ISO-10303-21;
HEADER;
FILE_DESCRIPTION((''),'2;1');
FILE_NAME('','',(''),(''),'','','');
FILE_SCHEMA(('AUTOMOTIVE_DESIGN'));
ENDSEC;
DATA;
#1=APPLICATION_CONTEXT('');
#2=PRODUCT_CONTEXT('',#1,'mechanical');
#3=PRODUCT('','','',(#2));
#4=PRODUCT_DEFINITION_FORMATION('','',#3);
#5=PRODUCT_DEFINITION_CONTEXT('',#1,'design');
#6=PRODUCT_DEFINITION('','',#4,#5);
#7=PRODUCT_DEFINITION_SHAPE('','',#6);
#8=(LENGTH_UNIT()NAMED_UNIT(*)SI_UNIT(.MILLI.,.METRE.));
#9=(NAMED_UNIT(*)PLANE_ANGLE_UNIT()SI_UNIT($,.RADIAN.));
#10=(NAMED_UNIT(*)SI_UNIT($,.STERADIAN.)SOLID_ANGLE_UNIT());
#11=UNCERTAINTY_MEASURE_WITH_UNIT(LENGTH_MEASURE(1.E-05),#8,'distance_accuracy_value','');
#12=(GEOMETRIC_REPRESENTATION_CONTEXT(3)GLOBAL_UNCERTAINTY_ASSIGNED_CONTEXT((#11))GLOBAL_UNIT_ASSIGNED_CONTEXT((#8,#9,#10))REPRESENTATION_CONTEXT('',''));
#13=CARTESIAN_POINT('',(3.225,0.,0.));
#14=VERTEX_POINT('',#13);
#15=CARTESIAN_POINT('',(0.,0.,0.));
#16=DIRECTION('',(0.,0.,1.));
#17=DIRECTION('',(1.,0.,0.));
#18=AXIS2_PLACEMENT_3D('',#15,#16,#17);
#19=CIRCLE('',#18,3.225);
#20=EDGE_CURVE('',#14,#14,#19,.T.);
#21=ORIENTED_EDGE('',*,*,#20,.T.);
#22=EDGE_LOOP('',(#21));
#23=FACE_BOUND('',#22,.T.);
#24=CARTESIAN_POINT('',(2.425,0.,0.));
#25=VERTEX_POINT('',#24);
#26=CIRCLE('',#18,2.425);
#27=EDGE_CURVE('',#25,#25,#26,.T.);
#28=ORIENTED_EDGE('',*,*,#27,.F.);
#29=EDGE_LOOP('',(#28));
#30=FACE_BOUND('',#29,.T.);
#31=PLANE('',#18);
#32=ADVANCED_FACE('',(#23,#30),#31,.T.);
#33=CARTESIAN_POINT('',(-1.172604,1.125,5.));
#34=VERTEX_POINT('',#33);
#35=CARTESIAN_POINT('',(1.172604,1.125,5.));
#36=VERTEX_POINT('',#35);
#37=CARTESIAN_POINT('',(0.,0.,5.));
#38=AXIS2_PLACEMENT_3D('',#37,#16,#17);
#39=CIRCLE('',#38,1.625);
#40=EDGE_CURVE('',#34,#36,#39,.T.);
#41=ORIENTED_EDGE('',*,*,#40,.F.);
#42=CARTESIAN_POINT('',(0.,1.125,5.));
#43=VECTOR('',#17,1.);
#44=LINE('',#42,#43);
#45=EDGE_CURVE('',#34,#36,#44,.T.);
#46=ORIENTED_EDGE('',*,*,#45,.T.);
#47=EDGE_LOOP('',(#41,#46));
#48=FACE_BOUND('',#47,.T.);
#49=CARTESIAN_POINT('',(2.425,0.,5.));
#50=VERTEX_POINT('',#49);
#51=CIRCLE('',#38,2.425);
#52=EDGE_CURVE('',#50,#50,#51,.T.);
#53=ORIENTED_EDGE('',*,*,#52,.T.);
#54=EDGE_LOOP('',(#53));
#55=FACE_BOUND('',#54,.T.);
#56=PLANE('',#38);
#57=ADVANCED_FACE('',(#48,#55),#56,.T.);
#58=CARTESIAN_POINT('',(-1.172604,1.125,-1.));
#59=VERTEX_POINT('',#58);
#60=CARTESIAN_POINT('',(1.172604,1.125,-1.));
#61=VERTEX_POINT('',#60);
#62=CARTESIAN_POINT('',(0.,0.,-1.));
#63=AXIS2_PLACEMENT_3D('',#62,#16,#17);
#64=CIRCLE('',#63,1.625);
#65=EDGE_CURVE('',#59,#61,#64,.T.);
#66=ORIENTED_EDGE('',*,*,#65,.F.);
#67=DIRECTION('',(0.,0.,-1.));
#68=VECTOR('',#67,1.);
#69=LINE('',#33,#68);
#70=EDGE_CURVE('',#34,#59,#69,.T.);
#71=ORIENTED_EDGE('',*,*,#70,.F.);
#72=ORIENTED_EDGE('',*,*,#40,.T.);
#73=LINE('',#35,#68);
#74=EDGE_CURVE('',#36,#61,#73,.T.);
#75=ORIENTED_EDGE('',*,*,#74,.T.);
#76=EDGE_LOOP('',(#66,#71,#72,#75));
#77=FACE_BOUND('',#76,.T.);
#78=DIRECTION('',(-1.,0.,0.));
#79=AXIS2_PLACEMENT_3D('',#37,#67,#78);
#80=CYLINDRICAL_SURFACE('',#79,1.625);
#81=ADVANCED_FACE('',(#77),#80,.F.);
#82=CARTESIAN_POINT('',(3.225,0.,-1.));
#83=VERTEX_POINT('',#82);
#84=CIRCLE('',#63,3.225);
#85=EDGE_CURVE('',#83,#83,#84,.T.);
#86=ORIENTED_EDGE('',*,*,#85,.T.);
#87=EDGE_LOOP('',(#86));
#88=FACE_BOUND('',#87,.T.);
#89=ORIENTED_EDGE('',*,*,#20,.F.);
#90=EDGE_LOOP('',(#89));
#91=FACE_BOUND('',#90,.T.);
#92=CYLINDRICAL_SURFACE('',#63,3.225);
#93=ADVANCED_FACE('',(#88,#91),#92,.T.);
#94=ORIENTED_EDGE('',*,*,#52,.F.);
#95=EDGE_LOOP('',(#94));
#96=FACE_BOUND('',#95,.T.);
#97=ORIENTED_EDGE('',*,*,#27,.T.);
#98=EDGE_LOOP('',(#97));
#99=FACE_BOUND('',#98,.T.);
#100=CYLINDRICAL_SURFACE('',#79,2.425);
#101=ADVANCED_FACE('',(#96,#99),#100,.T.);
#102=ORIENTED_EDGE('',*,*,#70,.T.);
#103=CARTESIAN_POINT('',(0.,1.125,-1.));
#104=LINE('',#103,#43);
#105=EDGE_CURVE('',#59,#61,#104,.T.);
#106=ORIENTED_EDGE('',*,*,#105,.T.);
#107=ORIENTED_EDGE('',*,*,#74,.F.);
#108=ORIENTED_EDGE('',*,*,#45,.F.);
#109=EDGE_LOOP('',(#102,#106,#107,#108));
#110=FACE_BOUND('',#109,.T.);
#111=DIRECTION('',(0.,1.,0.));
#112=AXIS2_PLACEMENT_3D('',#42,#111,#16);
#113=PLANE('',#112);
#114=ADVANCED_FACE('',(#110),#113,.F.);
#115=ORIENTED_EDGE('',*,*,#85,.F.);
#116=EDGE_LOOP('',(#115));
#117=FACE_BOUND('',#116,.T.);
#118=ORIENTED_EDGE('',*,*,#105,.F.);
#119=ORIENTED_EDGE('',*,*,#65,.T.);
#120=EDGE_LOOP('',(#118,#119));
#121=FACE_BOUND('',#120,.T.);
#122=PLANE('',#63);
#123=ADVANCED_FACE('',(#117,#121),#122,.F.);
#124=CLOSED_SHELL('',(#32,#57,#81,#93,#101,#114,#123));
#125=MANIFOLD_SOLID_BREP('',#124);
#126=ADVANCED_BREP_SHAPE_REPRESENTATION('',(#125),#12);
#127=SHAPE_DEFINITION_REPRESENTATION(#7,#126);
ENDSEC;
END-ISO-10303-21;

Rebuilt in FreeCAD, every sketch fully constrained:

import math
import FreeCAD as App
import Part
import Sketcher
from FreeCAD import Vector
Q = App.Units.Quantity

doc = App.newDocument("Part")
params = doc.addObject("Spreadsheet::Sheet", "Params")
for row, (alias, value) in enumerate([
    ("sketch1_diameter", "4.85 mm"),
    ("pad1_length", "5 mm"),
    ("sketch2_diameter", "6.45 mm"),
    ("pad2_length", "1 mm"),
], start=1):
    params.set(f"A{row}", alias)
    params.set(f"B{row}", "=" + value)
    params.setAlias(f"B{row}", alias)

body = doc.addObject("PartDesign::Body", "Body")

sketch1 = body.newObject("Sketcher::SketchObject", "Sketch")
sketch1.AttachmentSupport = (doc.getObject("XY_Plane"), [""])
sketch1.MapMode = "FlatFace"
sketch1.addGeometry(Part.Circle(Vector(0, 0, 0), Vector(0, 0, 1), 2.4), False)
sketch1.addGeometry(Part.ArcOfCircle(Part.Circle(Vector(0, 0, 0), Vector(0, 0, 1), 1.6), math.radians(136), math.radians(404)), False)
sketch1.addGeometry(Part.LineSegment(Vector(-1.2, 1.1, 0), Vector(1.2, 1.1, 0)), False)
sketch1.addConstraint(Sketcher.Constraint("Coincident", 1, 1, 2, 1))
sketch1.addConstraint(Sketcher.Constraint("Coincident", 2, 2, 1, 2))
sketch1.addConstraint(Sketcher.Constraint("Horizontal", 2))
sketch1.addConstraint(Sketcher.Constraint("Coincident", 0, 3, -1, 1))
sketch1.addConstraint(Sketcher.Constraint("Coincident", 1, 3, -1, 1))
sketch1.addConstraint(Sketcher.Constraint("Diameter", 0, Q("4.85 mm")))
sketch1.addConstraint(Sketcher.Constraint("Radius", 1, Q("1.625 mm")))
sketch1.addConstraint(Sketcher.Constraint("DistanceY", -1, 1, 1, 1, Q("1.125 mm")))
sketch1.setExpression("Constraints[5]", "Params.sketch1_diameter")
pad1 = body.newObject("PartDesign::Pad", "Pad")
pad1.Profile = sketch1
pad1.setExpression("Length", "Params.pad1_length")

sketch2 = body.newObject("Sketcher::SketchObject", "Sketch001")
sketch2.AttachmentSupport = (doc.getObject("XY_Plane"), [""])
sketch2.MapMode = "FlatFace"
sketch2.AttachmentOffset = App.Placement(Vector(0, 0, -1), App.Rotation())
sketch2.addGeometry(Part.Circle(Vector(0, 0, 0), Vector(0, 0, 1), 3.2), False)
sketch2.addGeometry(Part.LineSegment(Vector(-1.2, 1.1, 0), Vector(1.2, 1.1, 0)), False)
sketch2.addGeometry(Part.ArcOfCircle(Part.Circle(Vector(0, 0, 0), Vector(0, 0, 1), 1.6), math.radians(136), math.radians(404)), False)
sketch2.addConstraint(Sketcher.Constraint("Coincident", 1, 1, 2, 1))
sketch2.addConstraint(Sketcher.Constraint("Coincident", 2, 2, 1, 2))
sketch2.addConstraint(Sketcher.Constraint("Horizontal", 1))
sketch2.addConstraint(Sketcher.Constraint("Coincident", 0, 3, -1, 1))
sketch2.addConstraint(Sketcher.Constraint("Coincident", 2, 3, -1, 1))
sketch2.addConstraint(Sketcher.Constraint("Diameter", 0, Q("6.45 mm")))
sketch2.addConstraint(Sketcher.Constraint("Radius", 2, Q("1.625 mm")))
sketch2.addConstraint(Sketcher.Constraint("DistanceY", -1, 1, 1, 1, Q("1.125 mm")))
sketch2.setExpression("Constraints[5]", "Params.sketch2_diameter")
pad2 = body.newObject("PartDesign::Pad", "Pad001")
pad2.Profile = sketch2
pad2.setExpression("Length", "Params.pad2_length")

doc.recompute()
